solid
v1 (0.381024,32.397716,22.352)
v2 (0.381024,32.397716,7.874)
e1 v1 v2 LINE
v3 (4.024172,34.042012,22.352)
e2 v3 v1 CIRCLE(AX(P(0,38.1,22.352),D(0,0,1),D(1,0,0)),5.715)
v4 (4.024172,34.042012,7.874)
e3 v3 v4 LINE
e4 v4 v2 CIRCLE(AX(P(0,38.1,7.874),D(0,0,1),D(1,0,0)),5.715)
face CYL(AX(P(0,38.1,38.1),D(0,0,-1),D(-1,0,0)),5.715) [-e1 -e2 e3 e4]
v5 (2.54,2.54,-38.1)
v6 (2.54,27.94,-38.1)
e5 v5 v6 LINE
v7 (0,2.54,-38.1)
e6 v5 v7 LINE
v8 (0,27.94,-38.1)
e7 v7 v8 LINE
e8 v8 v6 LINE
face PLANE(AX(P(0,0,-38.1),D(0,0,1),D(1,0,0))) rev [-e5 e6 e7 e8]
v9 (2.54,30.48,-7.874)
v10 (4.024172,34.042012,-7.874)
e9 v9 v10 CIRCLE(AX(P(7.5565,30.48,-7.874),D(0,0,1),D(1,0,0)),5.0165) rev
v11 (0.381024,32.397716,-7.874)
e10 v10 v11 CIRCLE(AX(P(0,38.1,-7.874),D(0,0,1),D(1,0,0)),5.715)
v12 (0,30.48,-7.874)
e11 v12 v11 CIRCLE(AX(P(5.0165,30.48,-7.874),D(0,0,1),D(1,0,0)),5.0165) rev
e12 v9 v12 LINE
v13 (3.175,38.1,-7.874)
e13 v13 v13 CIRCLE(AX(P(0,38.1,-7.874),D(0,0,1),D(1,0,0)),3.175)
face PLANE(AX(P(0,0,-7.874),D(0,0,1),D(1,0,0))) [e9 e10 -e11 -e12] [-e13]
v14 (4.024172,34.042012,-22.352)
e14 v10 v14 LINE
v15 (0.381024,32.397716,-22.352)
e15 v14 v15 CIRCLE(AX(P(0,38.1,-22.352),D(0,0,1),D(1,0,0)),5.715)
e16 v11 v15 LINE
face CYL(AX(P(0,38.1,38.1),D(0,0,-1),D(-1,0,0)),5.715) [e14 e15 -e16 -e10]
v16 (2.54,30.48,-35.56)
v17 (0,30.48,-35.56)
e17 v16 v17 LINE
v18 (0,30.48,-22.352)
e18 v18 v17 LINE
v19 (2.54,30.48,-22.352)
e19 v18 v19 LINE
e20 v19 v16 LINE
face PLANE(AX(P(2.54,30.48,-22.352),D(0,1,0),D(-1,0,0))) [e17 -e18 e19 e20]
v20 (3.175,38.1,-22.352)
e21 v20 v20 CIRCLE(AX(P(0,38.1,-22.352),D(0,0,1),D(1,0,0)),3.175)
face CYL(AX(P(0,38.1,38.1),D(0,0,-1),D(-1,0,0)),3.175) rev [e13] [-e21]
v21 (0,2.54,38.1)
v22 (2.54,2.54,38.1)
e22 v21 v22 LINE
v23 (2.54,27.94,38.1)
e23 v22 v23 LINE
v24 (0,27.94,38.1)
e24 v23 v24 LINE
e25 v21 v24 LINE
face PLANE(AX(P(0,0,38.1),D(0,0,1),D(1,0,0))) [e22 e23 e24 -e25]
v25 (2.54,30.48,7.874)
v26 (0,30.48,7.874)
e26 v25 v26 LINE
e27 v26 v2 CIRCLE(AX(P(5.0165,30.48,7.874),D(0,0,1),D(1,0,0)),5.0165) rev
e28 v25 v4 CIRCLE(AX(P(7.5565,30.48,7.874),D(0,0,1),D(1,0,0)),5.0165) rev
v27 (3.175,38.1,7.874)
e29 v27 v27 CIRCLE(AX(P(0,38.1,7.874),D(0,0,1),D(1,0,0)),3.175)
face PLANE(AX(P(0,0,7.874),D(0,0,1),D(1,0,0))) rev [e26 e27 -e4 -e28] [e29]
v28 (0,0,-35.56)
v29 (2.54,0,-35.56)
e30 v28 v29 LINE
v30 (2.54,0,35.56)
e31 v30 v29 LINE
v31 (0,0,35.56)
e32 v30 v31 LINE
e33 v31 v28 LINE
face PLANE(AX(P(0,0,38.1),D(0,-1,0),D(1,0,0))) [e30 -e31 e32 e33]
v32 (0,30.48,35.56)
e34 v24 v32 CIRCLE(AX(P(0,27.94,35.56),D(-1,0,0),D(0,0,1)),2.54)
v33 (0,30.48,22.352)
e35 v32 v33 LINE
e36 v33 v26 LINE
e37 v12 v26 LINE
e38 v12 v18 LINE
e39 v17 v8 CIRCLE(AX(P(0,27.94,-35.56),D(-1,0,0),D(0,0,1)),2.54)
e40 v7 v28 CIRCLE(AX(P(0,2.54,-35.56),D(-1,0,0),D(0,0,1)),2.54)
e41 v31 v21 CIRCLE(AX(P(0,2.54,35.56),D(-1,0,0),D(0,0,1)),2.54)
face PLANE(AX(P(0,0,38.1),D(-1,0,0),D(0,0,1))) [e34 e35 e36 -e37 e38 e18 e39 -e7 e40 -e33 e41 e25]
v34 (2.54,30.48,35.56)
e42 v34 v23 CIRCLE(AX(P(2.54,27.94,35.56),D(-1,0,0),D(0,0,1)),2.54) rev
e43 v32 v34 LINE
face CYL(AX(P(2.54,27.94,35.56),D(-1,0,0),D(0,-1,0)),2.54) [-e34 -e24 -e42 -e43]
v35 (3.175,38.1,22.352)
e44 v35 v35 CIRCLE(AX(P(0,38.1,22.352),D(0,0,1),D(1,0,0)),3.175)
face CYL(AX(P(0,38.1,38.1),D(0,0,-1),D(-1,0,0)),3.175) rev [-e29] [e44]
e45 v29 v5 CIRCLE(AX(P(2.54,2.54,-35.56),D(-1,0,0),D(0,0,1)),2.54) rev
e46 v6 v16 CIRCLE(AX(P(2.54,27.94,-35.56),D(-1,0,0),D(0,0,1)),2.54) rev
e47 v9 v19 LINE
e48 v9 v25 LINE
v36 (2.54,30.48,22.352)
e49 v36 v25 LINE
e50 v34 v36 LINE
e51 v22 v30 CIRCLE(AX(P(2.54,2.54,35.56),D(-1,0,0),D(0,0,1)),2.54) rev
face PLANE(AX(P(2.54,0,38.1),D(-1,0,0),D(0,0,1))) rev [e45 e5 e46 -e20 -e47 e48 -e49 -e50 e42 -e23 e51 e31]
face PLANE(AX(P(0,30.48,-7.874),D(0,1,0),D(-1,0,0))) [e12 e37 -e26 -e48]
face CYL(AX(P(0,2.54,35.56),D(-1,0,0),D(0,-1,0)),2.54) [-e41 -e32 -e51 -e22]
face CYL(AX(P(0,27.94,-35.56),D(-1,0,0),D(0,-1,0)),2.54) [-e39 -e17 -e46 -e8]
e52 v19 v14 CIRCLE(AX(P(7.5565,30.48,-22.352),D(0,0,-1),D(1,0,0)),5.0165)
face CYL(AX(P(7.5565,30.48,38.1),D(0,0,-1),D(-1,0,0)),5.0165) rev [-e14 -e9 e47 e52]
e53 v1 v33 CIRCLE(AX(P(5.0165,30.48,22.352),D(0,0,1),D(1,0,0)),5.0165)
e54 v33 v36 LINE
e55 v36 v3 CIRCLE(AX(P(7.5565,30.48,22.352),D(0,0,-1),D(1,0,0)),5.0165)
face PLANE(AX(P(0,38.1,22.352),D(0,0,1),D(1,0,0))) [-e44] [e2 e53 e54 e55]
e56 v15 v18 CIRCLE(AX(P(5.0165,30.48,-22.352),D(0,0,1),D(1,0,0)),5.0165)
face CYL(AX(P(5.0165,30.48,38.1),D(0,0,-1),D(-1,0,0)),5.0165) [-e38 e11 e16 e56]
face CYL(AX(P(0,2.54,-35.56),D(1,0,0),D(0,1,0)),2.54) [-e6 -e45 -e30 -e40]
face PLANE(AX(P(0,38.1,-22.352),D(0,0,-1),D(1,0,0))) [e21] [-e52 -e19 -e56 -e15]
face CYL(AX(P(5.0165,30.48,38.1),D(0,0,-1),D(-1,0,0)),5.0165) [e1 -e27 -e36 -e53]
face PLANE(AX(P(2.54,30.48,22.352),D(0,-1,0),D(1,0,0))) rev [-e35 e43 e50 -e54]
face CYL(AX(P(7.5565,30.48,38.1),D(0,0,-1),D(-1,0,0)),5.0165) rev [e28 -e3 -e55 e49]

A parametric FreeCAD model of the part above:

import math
import FreeCAD as App
import Part
import Sketcher

V = App.Vector
Q = App.Units.Quantity


def edges_at(feature, points):
    """Names of the edges that pass closest to the given points."""
    edges = feature.Shape.Edges
    near = lambda p: min(range(len(edges)), key=lambda i: edges[i].distToShape(Part.Vertex(*p))[0])
    return sorted({f"Edge{near(p) + 1}" for p in points})

doc = App.newDocument("Part")
params = doc.addObject("Spreadsheet::Sheet", "Params")
for row, (alias, value) in enumerate([
    ("sketch1_diameter", "0.25 in"),
    ("sketch1_width", "0.1 in"),
    ("sketch1_height", "1.2 in"),
    ("sketch1_radius", "0.225 in"),
    ("pad1_length", "3 in"),
    ("sketch2_diameter", "0.25 in"),
    ("sketch2_width", "0.1 in"),
    ("sketch2_radius", "0.225 in"),
    ("pocket1_length", "0.62 in"),
    ("sketch3_diameter", "0.25 in"),
    ("sketch3_width", "0.1 in"),
    ("sketch3_radius", "0.225 in"),
    ("pocket2_length", "0.62 in"),
    ("fillet_radius", "0.1 in"),
], start=1):
    params.set(f"A{row}", alias)
    params.set(f"B{row}", "=" + value)
    params.setAlias(f"B{row}", alias)

body = doc.addObject("PartDesign::Body", "Body")

# Sketch on XY plane
sketch1 = body.newObject("Sketcher::SketchObject", "Sketch")
sketch1.AttachmentSupport = (doc.getObject("XY_Plane"), [""])
sketch1.MapMode = "FlatFace"
sketch1.addGeometry(Part.ArcOfCircle(Part.Circle(V(5, 30.5, 0), V(0, 0, 1), 5), math.radians(158), math.radians(180)), False)
sketch1.addGeometry(Part.LineSegment(V(0, 30.5, 0), V(0, 0, 0)), False)
sketch1.addGeometry(Part.LineSegment(V(0, 0, 0), V(2.5, 0, 0)), False)
sketch1.addGeometry(Part.LineSegment(V(2.5, 0, 0), V(2.5, 30.5, 0)), False)
sketch1.addGeometry(Part.ArcOfCircle(Part.Circle(V(7.6, 30.5, 0), V(0, 0, 1), 5), math.radians(135), math.radians(180)), False)
sketch1.addGeometry(Part.ArcOfCircle(Part.Circle(V(0, 38.1, 0), V(0, 0, 1), 5.7), math.radians(-45), math.radians(274)), False)
sketch1.addGeometry(Part.Circle(V(0, 38.1, 0), V(0, 0, 1), 3.2), False)
sketch1.addConstraint(Sketcher.Constraint("Tangent", 0, 2, 1, 1))
sketch1.addConstraint(Sketcher.Constraint("Coincident", 1, 2, 2, 1))
sketch1.addConstraint(Sketcher.Constraint("Coincident", 2, 2, 3, 1))
sketch1.addConstraint(Sketcher.Constraint("Tangent", 3, 2, 4, 2))
sketch1.addConstraint(Sketcher.Constraint("Tangent", 4, 1, 5, 1))
sketch1.addConstraint(Sketcher.Constraint("Coincident", 5, 2, 0, 1))
sketch1.addConstraint(Sketcher.Constraint("Vertical", 1))
sketch1.addConstraint(Sketcher.Constraint("Horizontal", 2))
sketch1.addConstraint(Sketcher.Constraint("Vertical", 3))
sketch1.addConstraint(Sketcher.Constraint("Coincident", 1, 2, -1, 1))
sketch1.addConstraint(Sketcher.Constraint("Coincident", 6, 3, 5, 3))
sketch1.addConstraint(Sketcher.Constraint("Equal", 0, 4))
sketch1.addConstraint(Sketcher.Constraint("PointOnObject", 5, 3, -2))
sketch1.addConstraint(Sketcher.Constraint("Horizontal", 0, 3, 4, 3))
sketch1.addConstraint(Sketcher.Constraint("Diameter", 6, Q("0.25 in")))
sketch1.addConstraint(Sketcher.Constraint("DistanceX", 2, 1, 2, 2, Q("0.1 in")))
sketch1.addConstraint(Sketcher.Constraint("DistanceY", 1, 2, 1, 1, Q("1.2 in")))
sketch1.addConstraint(Sketcher.Constraint("Radius", 5, Q("0.225 in")))
sketch1.addConstraint(Sketcher.Constraint("DistanceY", -1, 1, 5, 3, Q("1.5 in")))
sketch1.setExpression("Constraints[14]", "Params.sketch1_diameter")
sketch1.setExpression("Constraints[15]", "Params.sketch1_width")
sketch1.setExpression("Constraints[16]", "Params.sketch1_height")
sketch1.setExpression("Constraints[17]", "Params.sketch1_radius")
pad1 = body.newObject("PartDesign::Pad", "Pad")
pad1.Profile = sketch1
pad1.setExpression("Length", "Params.pad1_length")
pad1.Midplane = True

# Sketch on XY plane
sketch2 = body.newObject("Sketcher::SketchObject", "Sketch001")
sketch2.AttachmentSupport = (doc.getObject("XY_Plane"), [""])
sketch2.MapMode = "FlatFace"
sketch2.addGeometry(Part.LineSegment(V(0, 30.5, 0), V(2.5, 30.5, 0)), False)
sketch2.addGeometry(Part.ArcOfCircle(Part.Circle(V(7.6, 30.5, 0), V(0, 0, 1), 5), math.radians(135), math.radians(180)), False)
sketch2.addGeometry(Part.ArcOfCircle(Part.Circle(V(0, 38.1, 0), V(0, 0, 1), 5.7), math.radians(-45), math.radians(274)), False)
sketch2.addGeometry(Part.ArcOfCircle(Part.Circle(V(5, 30.5, 0), V(0, 0, 1), 5), math.radians(158), math.radians(180)), False)
sketch2.addGeometry(Part.Circle(V(0, 38.1, 0), V(0, 0, 1), 3.2), False)
sketch2.addConstraint(Sketcher.Constraint("Coincident", 0, 2, 1, 2))
sketch2.addConstraint(Sketcher.Constraint("Tangent", 1, 1, 2, 1))
sketch2.addConstraint(Sketcher.Constraint("Coincident", 2, 2, 3, 1))
sketch2.addConstraint(Sketcher.Constraint("Coincident", 3, 2, 0, 1))
sketch2.addConstraint(Sketcher.Constraint("Horizontal", 0))
sketch2.addConstraint(Sketcher.Constraint("Coincident", 4, 3, 2, 3))
sketch2.addConstraint(Sketcher.Constraint("Equal", 1, 3))
sketch2.addConstraint(Sketcher.Constraint("PointOnObject", 2, 3, -2))
sketch2.addConstraint(Sketcher.Constraint("PointOnObject", 3, 2, -2))
sketch2.addConstraint(Sketcher.Constraint("Horizontal", 1, 3, 3, 3))
sketch2.addConstraint(Sketcher.Constraint("Horizontal", 3, 3, 0, 2))
sketch2.addConstraint(Sketcher.Constraint("Diameter", 4, Q("0.25 in")))
sketch2.addConstraint(Sketcher.Constraint("DistanceX", 0, 1, 0, 2, Q("0.1 in")))
sketch2.addConstraint(Sketcher.Constraint("Radius", 2, Q("0.225 in")))
sketch2.addConstraint(Sketcher.Constraint("DistanceY", -1, 1, 1, 3, Q("1.2 in")))
sketch2.addConstraint(Sketcher.Constraint("DistanceY", -1, 1, 2, 3, Q("1.5 in")))
sketch2.setExpression("Constraints[11]", "Params.sketch2_diameter")
sketch2.setExpression("Constraints[12]", "Params.sketch2_width")
sketch2.setExpression("Constraints[13]", "Params.sketch2_radius")
pocket1 = body.newObject("PartDesign::Pocket", "Pocket")
pocket1.Profile = sketch2
pocket1.setExpression("Length", "Params.pocket1_length")
pocket1.Midplane = True

# Sketch on XY plane
sketch3 = body.newObject("Sketcher::SketchObject", "Sketch002")
sketch3.AttachmentSupport = (doc.getObject("XY_Plane"), [""])
sketch3.MapMode = "FlatFace"
sketch3.AttachmentOffset = App.Placement(V(0, 0, 1.5 * 25.4), App.Rotation())
sketch3.addGeometry(Part.LineSegment(V(0, 30.5, 0), V(2.5, 30.5, 0)), False)
sketch3.addGeometry(Part.ArcOfCircle(Part.Circle(V(7.6, 30.5, 0), V(0, 0, 1), 5), math.radians(135), math.radians(180)), False)
sketch3.addGeometry(Part.ArcOfCircle(Part.Circle(V(0, 38.1, 0), V(0, 0, 1), 5.7), math.radians(-45), math.radians(274)), False)
sketch3.addGeometry(Part.ArcOfCircle(Part.Circle(V(5, 30.5, 0), V(0, 0, 1), 5), math.radians(158), math.radians(180)), False)
sketch3.addGeometry(Part.Circle(V(0, 38.1, 0), V(0, 0, 1), 3.2), False)
sketch3.addConstraint(Sketcher.Constraint("Coincident", 0, 2, 1, 2))
sketch3.addConstraint(Sketcher.Constraint("Tangent", 1, 1, 2, 1))
sketch3.addConstraint(Sketcher.Constraint("Coincident", 2, 2, 3, 1))
sketch3.addConstraint(Sketcher.Constraint("Coincident", 3, 2, 0, 1))
sketch3.addConstraint(Sketcher.Constraint("Horizontal", 0))
sketch3.addConstraint(Sketcher.Constraint("Coincident", 4, 3, 2, 3))
sketch3.addConstraint(Sketcher.Constraint("Equal", 1, 3))
sketch3.addConstraint(Sketcher.Constraint("PointOnObject", 2, 3, -2))
sketch3.addConstraint(Sketcher.Constraint("PointOnObject", 3, 2, -2))
sketch3.addConstraint(Sketcher.Constraint("Horizontal", 1, 3, 3, 3))
sketch3.addConstraint(Sketcher.Constraint("Horizontal", 3, 3, 0, 2))
sketch3.addConstraint(Sketcher.Constraint("Diameter", 4, Q("0.25 in")))
sketch3.addConstraint(Sketcher.Constraint("DistanceX", 0, 1, 0, 2, Q("0.1 in")))
sketch3.addConstraint(Sketcher.Constraint("Radius", 2, Q("0.225 in")))
sketch3.addConstraint(Sketcher.Constraint("DistanceY", -1, 1, 1, 3, Q("1.2 in")))
sketch3.addConstraint(Sketcher.Constraint("DistanceY", -1, 1, 2, 3, Q("1.5 in")))
sketch3.setExpression("Constraints[11]", "Params.sketch3_diameter")
sketch3.setExpression("Constraints[12]", "Params.sketch3_width")
sketch3.setExpression("Constraints[13]", "Params.sketch3_radius")
pocket2 = body.newObject("PartDesign::Pocket", "Pocket001")
pocket2.Profile = sketch3
pocket2.setExpression("Length", "Params.pocket2_length")
doc.recompute()

mirrored = body.newObject("PartDesign::Mirrored", "Mirrored")
mirrored.Originals = [pocket2]
mirrored.MirrorPlane = (doc.getObject("XY_Plane"), [""])
body.Tip = mirrored
doc.recompute()

fillet = body.newObject("PartDesign::Fillet", "Fillet")
fillet.Base = (mirrored, edges_at(mirrored, [
    (1.27, 0, 38.1),
    (1.27, 30.48, 38.1),
    (1.27, 30.48, -38.1),
    (1.27, 0, -38.1),
]))
fillet.setExpression("Radius", "Params.fillet_radius")

doc.recompute()
